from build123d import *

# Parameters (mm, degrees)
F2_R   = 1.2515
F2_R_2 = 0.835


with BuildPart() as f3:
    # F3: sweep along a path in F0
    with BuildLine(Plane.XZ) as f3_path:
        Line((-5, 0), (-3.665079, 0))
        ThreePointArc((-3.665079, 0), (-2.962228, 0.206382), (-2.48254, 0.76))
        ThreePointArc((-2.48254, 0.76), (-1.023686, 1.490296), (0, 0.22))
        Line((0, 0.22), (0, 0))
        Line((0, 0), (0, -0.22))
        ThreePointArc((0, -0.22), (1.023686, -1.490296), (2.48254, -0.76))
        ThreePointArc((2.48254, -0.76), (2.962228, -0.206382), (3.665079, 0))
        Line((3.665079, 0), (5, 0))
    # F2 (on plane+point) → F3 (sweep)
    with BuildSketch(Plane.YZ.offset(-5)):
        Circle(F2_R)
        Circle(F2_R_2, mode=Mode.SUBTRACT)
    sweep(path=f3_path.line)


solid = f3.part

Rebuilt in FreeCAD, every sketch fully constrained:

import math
import FreeCAD as App
import Part
import Sketcher
from FreeCAD import Vector
Q = App.Units.Quantity

doc = App.newDocument("Part")
body = doc.addObject("PartDesign::Body", "Body")

# Sketch on YZ plane
sketch1 = doc.addObject("Sketcher::SketchObject", "Sketch")
body.addObject(sketch1)
sketch1.AttachmentSupport = (doc.YZ_Plane, [""])
sketch1.MapMode = "FlatFace"
sketch1.AttachmentOffset = App.Placement(Vector(0, 0, -5), App.Rotation())
sketch1.addGeometry(Part.Circle(Vector(0, 0, 0), Vector(0, 0, 1), 1.2515), False)
sketch1.addGeometry(Part.Circle(Vector(0, 0, 0), Vector(0, 0, 1), 0.835), False)
sketch1.addConstraint(Sketcher.Constraint("Coincident", 0, 3, -1, 1))
sketch1.addConstraint(Sketcher.Constraint("Coincident", 1, 3, -1, 1))
sketch1.addConstraint(Sketcher.Constraint("Diameter", 1, Q("1.67 mm")))
sketch1.addConstraint(Sketcher.Constraint("Diameter", 0, Q("2.503 mm")))

# Sketch on XZ plane
sketch2 = doc.addObject("Sketcher::SketchObject", "Sketch001")
body.addObject(sketch2)
sketch2.AttachmentSupport = (doc.XZ_Plane, [""])
sketch2.MapMode = "FlatFace"
sketch2.addGeometry(Part.LineSegment(Vector(-5, 0, 0), Vector(-3.665079, 0, 0)), False)
sketch2.addGeometry(Part.ArcOfCircle(Part.Circle(Vector(-3.665079, 1.299998, 0), Vector(0, 0, 1), 1.299998), math.radians(-90.000016), math.radians(-24.543496)), False)
sketch2.addGeometry(Part.ArcOfCircle(Part.Circle(Vector(-1.3, 0.22, 0), Vector(0, 0, 1), 1.3), math.radians(-0.000021), math.radians(155.456485)), False)
sketch2.addGeometry(Part.LineSegment(Vector(0, 0.22, 0), Vector(0, -0.22, 0)), False)
sketch2.addGeometry(Part.ArcOfCircle(Part.Circle(Vector(1.3, -0.22, 0), Vector(0, 0, 1), 1.3), math.radians(179.999979), math.radians(335.456485)), False)
sketch2.addGeometry(Part.ArcOfCircle(Part.Circle(Vector(3.665079, -1.299998, 0), Vector(0, 0, 1), 1.299998), math.radians(89.999984), math.radians(155.456504)), False)
sketch2.addGeometry(Part.LineSegment(Vector(3.665079, 0, 0), Vector(5, 0, 0)), False)
sketch2.addConstraint(Sketcher.Constraint("Tangent", 0, 2, 1, 1))
sketch2.addConstraint(Sketcher.Constraint("Tangent", 1, 2, 2, 2))
sketch2.addConstraint(Sketcher.Constraint("Tangent", 2, 1, 3, 1))
sketch2.addConstraint(Sketcher.Constraint("Tangent", 3, 2, 4, 1))
sketch2.addConstraint(Sketcher.Constraint("Tangent", 4, 2, 5, 2))
sketch2.addConstraint(Sketcher.Constraint("Tangent", 5, 1, 6, 1))
sketch2.addConstraint(Sketcher.Constraint("Horizontal", 0))
sketch2.addConstraint(Sketcher.Constraint("Vertical", 3))
sketch2.addConstraint(Sketcher.Constraint("Horizontal", 6))
sketch2.addConstraint(Sketcher.Constraint("Equal", 1, 2))
sketch2.addConstraint(Sketcher.Constraint("Equal", 2, 4))
sketch2.addConstraint(Sketcher.Constraint("Equal", 4, 5))
sketch2.addConstraint(Sketcher.Constraint("Symmetric", 2, 3, 4, 3, -1, 1))
sketch2.addConstraint(Sketcher.Constraint("Symmetric", 0, 1, 6, 2, -1, 1))
sketch2.addConstraint(Sketcher.Constraint("PointOnObject", 0, 1, -1))
sketch2.addConstraint(Sketcher.Constraint("Radius", 1, Q("1.299998 mm")))
sketch2.addConstraint(Sketcher.Constraint("DistanceX", 0, 1, -1, 1, Q("5 mm")))
sketch2.addConstraint(Sketcher.Constraint("DistanceY", 3, 2, 3, 1, Q("0.44 mm")))
doc.recompute()

additivepipe = doc.addObject("PartDesign::AdditivePipe", "AdditivePipe")
body.addObject(additivepipe)
additivepipe.Profile = sketch1
additivepipe.Spine = (sketch2, ["Edge1", "Edge2", "Edge3", "Edge4", "Edge5", "Edge6", "Edge7"])

doc.recompute()
